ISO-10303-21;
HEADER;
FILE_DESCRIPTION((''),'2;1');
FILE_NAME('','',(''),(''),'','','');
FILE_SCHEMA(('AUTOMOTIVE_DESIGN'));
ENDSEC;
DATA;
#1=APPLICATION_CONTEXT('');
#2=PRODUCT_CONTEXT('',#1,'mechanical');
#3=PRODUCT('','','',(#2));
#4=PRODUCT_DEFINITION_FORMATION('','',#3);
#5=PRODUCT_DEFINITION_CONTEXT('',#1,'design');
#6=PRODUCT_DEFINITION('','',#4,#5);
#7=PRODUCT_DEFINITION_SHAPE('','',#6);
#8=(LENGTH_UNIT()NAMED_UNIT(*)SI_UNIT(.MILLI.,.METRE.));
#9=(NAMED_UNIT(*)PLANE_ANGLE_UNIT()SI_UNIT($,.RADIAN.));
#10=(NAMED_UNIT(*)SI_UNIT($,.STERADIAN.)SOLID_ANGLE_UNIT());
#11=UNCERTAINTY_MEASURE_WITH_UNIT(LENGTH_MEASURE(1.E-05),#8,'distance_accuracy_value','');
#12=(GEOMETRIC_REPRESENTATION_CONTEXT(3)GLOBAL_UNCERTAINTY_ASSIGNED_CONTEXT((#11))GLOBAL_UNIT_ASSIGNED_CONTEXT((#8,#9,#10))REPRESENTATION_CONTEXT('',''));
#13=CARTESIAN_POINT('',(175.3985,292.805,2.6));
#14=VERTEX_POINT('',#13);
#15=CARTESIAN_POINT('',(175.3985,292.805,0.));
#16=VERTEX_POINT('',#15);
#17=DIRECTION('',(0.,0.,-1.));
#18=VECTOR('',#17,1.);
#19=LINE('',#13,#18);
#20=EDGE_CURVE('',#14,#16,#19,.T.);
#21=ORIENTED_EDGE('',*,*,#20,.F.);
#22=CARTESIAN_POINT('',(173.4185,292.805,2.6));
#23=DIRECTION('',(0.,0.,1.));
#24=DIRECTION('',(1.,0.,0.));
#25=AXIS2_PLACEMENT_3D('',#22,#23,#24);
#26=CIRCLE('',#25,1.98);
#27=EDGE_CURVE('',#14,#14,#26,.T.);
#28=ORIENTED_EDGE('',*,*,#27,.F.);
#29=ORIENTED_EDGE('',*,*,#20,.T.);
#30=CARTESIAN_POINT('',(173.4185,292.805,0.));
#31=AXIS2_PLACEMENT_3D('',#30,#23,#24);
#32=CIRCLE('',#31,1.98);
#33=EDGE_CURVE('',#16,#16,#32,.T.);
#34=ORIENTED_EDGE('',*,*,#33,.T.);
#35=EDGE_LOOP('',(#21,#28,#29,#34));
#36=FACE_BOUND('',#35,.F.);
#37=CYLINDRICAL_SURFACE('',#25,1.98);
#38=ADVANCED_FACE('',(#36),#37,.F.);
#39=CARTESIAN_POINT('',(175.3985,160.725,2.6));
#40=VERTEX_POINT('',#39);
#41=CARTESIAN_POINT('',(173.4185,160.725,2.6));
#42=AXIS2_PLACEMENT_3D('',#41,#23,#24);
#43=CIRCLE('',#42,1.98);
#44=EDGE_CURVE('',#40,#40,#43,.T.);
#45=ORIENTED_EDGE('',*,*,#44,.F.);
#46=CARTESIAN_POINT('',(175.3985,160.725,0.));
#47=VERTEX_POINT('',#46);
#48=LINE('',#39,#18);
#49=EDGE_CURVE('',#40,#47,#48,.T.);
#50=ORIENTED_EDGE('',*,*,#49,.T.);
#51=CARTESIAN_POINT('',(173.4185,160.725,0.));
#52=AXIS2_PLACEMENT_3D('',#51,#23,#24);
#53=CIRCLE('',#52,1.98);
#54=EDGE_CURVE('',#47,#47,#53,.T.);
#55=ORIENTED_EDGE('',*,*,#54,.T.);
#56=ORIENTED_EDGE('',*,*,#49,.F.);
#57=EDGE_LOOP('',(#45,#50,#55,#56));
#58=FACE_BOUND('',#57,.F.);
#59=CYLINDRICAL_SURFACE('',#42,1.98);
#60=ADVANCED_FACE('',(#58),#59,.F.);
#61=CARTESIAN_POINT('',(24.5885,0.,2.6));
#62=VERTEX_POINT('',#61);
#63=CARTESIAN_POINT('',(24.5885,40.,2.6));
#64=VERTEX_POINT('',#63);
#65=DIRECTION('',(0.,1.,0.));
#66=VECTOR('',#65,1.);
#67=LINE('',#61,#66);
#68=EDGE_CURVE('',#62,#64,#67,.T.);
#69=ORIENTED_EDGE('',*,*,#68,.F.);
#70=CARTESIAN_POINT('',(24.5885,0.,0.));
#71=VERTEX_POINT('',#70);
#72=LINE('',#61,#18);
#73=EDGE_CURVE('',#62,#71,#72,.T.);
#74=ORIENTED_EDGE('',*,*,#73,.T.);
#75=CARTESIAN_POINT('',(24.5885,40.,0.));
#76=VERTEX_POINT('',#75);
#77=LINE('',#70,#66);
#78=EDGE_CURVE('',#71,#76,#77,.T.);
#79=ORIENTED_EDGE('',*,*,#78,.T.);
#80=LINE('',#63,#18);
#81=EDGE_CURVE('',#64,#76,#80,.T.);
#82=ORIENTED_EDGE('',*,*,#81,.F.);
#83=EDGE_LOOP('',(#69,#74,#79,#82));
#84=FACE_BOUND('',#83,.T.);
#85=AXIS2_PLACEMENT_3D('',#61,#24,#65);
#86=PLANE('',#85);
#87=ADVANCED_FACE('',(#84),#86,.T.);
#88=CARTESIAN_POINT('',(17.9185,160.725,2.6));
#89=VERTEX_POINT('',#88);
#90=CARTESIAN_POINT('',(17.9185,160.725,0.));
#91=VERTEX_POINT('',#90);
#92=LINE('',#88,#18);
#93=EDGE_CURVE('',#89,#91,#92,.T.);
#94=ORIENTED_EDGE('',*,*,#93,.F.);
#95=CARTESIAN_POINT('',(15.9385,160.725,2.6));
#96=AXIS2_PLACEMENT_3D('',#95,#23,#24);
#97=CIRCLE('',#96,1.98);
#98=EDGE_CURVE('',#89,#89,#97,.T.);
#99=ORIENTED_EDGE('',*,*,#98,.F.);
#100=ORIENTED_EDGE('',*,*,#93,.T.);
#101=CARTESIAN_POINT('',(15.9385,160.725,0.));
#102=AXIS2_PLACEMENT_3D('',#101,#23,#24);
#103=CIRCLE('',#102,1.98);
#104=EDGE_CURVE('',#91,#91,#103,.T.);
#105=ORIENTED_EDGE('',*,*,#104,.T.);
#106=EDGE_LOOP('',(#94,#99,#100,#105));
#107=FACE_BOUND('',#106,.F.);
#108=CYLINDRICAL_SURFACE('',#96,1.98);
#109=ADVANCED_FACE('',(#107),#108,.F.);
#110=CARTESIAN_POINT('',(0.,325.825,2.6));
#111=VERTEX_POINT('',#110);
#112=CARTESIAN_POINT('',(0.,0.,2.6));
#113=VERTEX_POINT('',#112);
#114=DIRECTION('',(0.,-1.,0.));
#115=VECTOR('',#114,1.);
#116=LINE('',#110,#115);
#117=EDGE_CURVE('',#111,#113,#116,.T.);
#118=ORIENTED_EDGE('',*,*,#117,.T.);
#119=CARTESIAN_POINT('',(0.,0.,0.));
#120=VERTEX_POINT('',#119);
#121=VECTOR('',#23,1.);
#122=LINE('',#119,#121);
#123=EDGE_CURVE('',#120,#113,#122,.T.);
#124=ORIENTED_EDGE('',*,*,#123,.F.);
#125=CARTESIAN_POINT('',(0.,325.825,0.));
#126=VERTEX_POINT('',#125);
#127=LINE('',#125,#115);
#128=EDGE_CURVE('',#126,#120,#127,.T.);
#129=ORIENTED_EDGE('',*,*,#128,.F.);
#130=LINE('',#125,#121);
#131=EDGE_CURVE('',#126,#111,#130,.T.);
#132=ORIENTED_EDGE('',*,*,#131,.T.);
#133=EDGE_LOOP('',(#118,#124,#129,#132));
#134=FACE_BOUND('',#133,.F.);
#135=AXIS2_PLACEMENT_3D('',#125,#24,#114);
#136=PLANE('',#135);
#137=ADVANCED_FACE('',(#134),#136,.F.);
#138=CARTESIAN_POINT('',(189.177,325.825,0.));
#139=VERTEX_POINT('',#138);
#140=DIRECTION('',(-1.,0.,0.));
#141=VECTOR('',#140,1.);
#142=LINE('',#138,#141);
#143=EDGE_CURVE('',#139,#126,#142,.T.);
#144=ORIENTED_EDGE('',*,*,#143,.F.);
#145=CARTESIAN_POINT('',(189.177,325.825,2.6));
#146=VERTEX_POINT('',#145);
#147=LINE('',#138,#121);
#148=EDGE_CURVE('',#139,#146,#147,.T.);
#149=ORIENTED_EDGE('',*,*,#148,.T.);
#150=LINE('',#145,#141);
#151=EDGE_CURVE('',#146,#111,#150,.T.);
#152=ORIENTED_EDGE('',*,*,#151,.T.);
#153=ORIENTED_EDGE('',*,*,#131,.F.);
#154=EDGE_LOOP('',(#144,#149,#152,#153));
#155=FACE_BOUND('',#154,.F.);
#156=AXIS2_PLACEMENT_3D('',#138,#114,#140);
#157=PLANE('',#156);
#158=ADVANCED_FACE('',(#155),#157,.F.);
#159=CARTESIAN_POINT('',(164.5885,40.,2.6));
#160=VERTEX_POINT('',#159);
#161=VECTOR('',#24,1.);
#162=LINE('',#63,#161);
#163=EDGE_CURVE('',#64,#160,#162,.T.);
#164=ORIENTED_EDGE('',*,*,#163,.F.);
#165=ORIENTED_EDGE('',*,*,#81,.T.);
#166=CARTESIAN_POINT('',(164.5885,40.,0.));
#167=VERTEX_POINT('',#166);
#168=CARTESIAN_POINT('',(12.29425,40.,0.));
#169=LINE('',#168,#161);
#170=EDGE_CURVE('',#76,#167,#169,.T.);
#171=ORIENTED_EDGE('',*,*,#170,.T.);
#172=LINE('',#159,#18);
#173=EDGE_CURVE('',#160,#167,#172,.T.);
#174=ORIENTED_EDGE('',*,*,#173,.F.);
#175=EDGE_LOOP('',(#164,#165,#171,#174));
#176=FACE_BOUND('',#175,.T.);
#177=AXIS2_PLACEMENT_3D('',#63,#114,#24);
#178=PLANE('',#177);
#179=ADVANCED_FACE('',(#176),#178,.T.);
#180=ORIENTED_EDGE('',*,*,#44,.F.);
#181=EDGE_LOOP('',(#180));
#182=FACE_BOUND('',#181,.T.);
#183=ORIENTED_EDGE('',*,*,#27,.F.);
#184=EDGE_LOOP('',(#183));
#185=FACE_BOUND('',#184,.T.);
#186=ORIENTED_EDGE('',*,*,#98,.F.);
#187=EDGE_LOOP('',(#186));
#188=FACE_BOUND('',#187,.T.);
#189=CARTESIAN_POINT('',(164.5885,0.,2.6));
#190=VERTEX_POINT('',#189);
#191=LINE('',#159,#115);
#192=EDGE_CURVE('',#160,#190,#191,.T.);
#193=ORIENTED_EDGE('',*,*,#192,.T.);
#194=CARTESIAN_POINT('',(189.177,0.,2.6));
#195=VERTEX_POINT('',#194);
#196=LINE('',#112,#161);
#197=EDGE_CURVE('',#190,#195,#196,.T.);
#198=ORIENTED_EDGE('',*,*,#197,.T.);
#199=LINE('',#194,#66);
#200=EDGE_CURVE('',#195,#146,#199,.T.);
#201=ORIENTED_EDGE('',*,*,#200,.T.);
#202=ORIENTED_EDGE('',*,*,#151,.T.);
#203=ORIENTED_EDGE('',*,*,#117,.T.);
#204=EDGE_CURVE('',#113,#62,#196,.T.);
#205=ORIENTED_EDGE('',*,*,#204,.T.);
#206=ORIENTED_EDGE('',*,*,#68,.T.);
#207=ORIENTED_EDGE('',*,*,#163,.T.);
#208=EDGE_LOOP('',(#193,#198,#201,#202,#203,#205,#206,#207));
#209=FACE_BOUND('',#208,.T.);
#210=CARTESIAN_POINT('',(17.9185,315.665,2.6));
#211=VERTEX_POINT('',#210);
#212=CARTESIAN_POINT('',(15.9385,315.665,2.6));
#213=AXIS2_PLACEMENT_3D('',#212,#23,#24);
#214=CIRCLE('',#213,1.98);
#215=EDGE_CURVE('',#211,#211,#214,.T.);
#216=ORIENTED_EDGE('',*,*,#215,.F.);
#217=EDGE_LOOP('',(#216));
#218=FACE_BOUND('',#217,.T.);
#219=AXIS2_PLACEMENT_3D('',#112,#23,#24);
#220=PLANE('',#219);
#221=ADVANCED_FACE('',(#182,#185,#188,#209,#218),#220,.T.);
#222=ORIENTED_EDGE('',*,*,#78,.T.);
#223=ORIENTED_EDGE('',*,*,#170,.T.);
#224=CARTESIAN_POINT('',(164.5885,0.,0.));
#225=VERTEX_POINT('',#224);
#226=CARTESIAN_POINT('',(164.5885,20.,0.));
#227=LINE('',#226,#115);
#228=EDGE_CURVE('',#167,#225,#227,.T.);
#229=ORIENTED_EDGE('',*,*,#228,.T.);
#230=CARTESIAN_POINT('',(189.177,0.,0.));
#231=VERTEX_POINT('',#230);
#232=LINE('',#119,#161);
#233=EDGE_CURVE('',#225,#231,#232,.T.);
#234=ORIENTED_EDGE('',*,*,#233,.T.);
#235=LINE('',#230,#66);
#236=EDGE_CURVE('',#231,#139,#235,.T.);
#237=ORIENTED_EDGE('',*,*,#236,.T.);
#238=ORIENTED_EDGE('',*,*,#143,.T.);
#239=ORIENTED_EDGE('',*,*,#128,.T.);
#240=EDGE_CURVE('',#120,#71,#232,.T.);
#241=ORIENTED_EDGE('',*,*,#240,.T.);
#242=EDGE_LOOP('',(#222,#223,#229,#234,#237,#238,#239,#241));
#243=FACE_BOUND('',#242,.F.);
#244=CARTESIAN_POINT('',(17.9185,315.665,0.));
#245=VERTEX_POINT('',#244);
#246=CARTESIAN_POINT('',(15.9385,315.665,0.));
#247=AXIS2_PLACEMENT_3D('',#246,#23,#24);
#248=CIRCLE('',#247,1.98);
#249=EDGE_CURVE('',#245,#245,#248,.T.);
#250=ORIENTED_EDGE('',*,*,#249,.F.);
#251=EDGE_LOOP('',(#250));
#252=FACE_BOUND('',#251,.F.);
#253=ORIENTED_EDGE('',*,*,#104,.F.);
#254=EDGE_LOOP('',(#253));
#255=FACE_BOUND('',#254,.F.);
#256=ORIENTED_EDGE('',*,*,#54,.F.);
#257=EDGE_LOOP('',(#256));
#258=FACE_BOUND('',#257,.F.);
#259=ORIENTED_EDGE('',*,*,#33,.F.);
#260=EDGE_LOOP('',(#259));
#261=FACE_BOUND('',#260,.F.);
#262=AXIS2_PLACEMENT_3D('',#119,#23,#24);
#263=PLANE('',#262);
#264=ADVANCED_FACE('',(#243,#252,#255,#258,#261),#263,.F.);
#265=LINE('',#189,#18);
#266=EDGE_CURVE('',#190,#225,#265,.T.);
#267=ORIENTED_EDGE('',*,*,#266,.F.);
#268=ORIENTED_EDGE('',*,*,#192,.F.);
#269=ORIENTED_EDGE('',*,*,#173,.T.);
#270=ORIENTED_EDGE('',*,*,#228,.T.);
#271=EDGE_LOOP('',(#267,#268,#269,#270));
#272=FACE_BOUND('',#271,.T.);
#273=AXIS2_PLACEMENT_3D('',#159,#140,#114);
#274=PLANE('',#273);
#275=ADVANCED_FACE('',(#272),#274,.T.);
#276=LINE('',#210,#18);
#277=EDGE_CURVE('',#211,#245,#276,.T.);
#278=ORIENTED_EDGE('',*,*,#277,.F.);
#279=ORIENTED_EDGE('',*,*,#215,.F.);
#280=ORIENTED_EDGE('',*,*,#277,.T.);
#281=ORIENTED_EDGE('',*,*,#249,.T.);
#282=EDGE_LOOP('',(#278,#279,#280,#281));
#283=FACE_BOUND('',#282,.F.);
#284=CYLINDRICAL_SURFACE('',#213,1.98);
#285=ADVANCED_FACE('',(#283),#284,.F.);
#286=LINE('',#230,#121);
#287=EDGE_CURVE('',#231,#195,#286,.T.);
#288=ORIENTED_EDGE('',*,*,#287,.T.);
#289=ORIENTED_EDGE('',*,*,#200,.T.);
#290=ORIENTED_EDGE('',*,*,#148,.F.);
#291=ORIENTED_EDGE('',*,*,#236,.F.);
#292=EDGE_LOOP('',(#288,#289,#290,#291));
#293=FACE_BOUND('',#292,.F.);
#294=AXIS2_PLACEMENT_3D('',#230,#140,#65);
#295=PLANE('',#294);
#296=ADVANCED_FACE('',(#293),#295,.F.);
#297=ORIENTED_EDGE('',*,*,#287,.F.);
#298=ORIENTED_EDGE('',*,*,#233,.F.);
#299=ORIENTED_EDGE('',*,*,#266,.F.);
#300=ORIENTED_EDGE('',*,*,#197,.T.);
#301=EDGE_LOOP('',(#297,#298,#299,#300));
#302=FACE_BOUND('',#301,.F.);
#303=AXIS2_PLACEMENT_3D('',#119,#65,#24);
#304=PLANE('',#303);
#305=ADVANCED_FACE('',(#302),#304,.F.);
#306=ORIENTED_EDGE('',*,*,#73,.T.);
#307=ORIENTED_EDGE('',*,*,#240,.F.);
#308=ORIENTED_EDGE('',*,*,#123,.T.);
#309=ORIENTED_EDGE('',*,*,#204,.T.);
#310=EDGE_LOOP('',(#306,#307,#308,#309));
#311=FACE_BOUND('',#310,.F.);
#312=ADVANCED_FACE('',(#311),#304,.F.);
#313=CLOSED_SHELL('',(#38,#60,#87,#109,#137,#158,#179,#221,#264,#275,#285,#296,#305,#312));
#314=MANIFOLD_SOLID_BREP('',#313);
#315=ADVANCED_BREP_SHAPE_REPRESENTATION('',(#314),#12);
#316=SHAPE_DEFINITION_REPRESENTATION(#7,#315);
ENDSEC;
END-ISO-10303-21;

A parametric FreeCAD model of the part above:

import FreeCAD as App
import Part
import Sketcher

V = App.Vector
Q = App.Units.Quantity

doc = App.newDocument("Part")
body = doc.addObject("PartDesign::Body", "Body")

sketch1 = body.newObject("Sketcher::SketchObject", "Sketch")
sketch1.AttachmentSupport = (doc.getObject("XY_Plane"), [""])
sketch1.MapMode = "FlatFace"
sketch1.addGeometry(Part.LineSegment(V(0, 326, 0), V(0, 0, 0)), False)
sketch1.addGeometry(Part.LineSegment(V(0, 0, 0), V(189, 0, 0)), False)
sketch1.addGeometry(Part.LineSegment(V(189, 0, 0), V(189, 326, 0)), False)
sketch1.addGeometry(Part.LineSegment(V(189, 326, 0), V(0, 326, 0)), False)
sketch1.addConstraint(Sketcher.Constraint("Coincident", 0, 2, 1, 1))
sketch1.addConstraint(Sketcher.Constraint("Coincident", 1, 2, 2, 1))
sketch1.addConstraint(Sketcher.Constraint("Coincident", 2, 2, 3, 1))
sketch1.addConstraint(Sketcher.Constraint("Coincident", 3, 2, 0, 1))
sketch1.addConstraint(Sketcher.Constraint("Vertical", 0))
sketch1.addConstraint(Sketcher.Constraint("Horizontal", 1))
sketch1.addConstraint(Sketcher.Constraint("Vertical", 2))
sketch1.addConstraint(Sketcher.Constraint("Horizontal", 3))
sketch1.addConstraint(Sketcher.Constraint("Coincident", 0, 2, -1, 1))
sketch1.addConstraint(Sketcher.Constraint("DistanceX", 1, 1, 1, 2, Q("189.177 mm")))
sketch1.addConstraint(Sketcher.Constraint("DistanceY", 0, 2, 0, 1, Q("325.825 mm")))
pad1 = body.newObject("PartDesign::Pad", "Pad")
pad1.Profile = sketch1
pad1.Length = 2.6

sketch2 = body.newObject("Sketcher::SketchObject", "Sketch001")
sketch2.AttachmentSupport = (doc.getObject("XY_Plane"), [""])
sketch2.MapMode = "FlatFace"
sketch2.AttachmentOffset = App.Placement(V(0, 0, 2.6), App.Rotation())
sketch2.addGeometry(Part.Circle(V(173.4, 160.7, 0), V(0, 0, 1), 2), False)
sketch2.addGeometry(Part.Circle(V(15.9, 160.7, 0), V(0, 0, 1), 2), False)
sketch2.addGeometry(Part.Circle(V(15.9, 315.7, 0), V(0, 0, 1), 2), False)
sketch2.addGeometry(Part.Circle(V(173.4, 292.8, 0), V(0, 0, 1), 2), False)
sketch2.addConstraint(Sketcher.Constraint("Equal", 0, 1))
sketch2.addConstraint(Sketcher.Constraint("Equal", 1, 2))
sketch2.addConstraint(Sketcher.Constraint("Equal", 2, 3))
sketch2.addConstraint(Sketcher.Constraint("Horizontal", 0, 3, 1, 3))
sketch2.addConstraint(Sketcher.Constraint("Vertical", 1, 3, 2, 3))
sketch2.addConstraint(Sketcher.Constraint("Vertical", 0, 3, 3, 3))
sketch2.addConstraint(Sketcher.Constraint("Diameter", 0, Q("3.96 mm")))
sketch2.addConstraint(Sketcher.Constraint("DistanceX", 1, 3, 0, 3, Q("157.48 mm")))
sketch2.addConstraint(Sketcher.Constraint("DistanceY", 1, 3, 2, 3, Q("154.94 mm")))
sketch2.addConstraint(Sketcher.Constraint("DistanceY", 0, 3, 3, 3, Q("132.08 mm")))
sketch2.addConstraint(Sketcher.Constraint("DistanceY", -1, 1, 0, 3, Q("160.725 mm")))
sketch2.addConstraint(Sketcher.Constraint("DistanceX", -1, 1, 0, 3, Q("173.4185 mm")))
pocket1 = body.newObject("PartDesign::Pocket", "Pocket")
pocket1.Profile = sketch2
pocket1.Length = 5

sketch3 = body.newObject("Sketcher::SketchObject", "Sketch002")
sketch3.AttachmentSupport = (doc.getObject("XY_Plane"), [""])
sketch3.MapMode = "FlatFace"
sketch3.AttachmentOffset = App.Placement(V(0, 0, 2.6), App.Rotation())
sketch3.addGeometry(Part.LineSegment(V(25, 40, 0), V(25, 0, 0)), False)
sketch3.addGeometry(Part.LineSegment(V(25, 0, 0), V(165, 0, 0)), False)
sketch3.addGeometry(Part.LineSegment(V(165, 0, 0), V(165, 40, 0)), False)
sketch3.addGeometry(Part.LineSegment(V(165, 40, 0), V(25, 40, 0)), False)
sketch3.addConstraint(Sketcher.Constraint("Coincident", 0, 2, 1, 1))
sketch3.addConstraint(Sketcher.Constraint("Coincident", 1, 2, 2, 1))
sketch3.addConstraint(Sketcher.Constraint("Coincident", 2, 2, 3, 1))
sketch3.addConstraint(Sketcher.Constraint("Coincident", 3, 2, 0, 1))
sketch3.addConstraint(Sketcher.Constraint("Vertical", 0))
sketch3.addConstraint(Sketcher.Constraint("Horizontal", 1))
sketch3.addConstraint(Sketcher.Constraint("Vertical", 2))
sketch3.addConstraint(Sketcher.Constraint("Horizontal", 3))
sketch3.addConstraint(Sketcher.Constraint("PointOnObject", 0, 2, -1))
sketch3.addConstraint(Sketcher.Constraint("DistanceX", 1, 1, 1, 2, Q("140 mm")))
sketch3.addConstraint(Sketcher.Constraint("DistanceY", 0, 2, 0, 1, Q("40 mm")))
sketch3.addConstraint(Sketcher.Constraint("DistanceX", -1, 1, 0, 2, Q("24.5885 mm")))
pocket2 = body.newObject("PartDesign::Pocket", "Pocket001")
pocket2.Profile = sketch3
pocket2.Length = 10

doc.recompute()
